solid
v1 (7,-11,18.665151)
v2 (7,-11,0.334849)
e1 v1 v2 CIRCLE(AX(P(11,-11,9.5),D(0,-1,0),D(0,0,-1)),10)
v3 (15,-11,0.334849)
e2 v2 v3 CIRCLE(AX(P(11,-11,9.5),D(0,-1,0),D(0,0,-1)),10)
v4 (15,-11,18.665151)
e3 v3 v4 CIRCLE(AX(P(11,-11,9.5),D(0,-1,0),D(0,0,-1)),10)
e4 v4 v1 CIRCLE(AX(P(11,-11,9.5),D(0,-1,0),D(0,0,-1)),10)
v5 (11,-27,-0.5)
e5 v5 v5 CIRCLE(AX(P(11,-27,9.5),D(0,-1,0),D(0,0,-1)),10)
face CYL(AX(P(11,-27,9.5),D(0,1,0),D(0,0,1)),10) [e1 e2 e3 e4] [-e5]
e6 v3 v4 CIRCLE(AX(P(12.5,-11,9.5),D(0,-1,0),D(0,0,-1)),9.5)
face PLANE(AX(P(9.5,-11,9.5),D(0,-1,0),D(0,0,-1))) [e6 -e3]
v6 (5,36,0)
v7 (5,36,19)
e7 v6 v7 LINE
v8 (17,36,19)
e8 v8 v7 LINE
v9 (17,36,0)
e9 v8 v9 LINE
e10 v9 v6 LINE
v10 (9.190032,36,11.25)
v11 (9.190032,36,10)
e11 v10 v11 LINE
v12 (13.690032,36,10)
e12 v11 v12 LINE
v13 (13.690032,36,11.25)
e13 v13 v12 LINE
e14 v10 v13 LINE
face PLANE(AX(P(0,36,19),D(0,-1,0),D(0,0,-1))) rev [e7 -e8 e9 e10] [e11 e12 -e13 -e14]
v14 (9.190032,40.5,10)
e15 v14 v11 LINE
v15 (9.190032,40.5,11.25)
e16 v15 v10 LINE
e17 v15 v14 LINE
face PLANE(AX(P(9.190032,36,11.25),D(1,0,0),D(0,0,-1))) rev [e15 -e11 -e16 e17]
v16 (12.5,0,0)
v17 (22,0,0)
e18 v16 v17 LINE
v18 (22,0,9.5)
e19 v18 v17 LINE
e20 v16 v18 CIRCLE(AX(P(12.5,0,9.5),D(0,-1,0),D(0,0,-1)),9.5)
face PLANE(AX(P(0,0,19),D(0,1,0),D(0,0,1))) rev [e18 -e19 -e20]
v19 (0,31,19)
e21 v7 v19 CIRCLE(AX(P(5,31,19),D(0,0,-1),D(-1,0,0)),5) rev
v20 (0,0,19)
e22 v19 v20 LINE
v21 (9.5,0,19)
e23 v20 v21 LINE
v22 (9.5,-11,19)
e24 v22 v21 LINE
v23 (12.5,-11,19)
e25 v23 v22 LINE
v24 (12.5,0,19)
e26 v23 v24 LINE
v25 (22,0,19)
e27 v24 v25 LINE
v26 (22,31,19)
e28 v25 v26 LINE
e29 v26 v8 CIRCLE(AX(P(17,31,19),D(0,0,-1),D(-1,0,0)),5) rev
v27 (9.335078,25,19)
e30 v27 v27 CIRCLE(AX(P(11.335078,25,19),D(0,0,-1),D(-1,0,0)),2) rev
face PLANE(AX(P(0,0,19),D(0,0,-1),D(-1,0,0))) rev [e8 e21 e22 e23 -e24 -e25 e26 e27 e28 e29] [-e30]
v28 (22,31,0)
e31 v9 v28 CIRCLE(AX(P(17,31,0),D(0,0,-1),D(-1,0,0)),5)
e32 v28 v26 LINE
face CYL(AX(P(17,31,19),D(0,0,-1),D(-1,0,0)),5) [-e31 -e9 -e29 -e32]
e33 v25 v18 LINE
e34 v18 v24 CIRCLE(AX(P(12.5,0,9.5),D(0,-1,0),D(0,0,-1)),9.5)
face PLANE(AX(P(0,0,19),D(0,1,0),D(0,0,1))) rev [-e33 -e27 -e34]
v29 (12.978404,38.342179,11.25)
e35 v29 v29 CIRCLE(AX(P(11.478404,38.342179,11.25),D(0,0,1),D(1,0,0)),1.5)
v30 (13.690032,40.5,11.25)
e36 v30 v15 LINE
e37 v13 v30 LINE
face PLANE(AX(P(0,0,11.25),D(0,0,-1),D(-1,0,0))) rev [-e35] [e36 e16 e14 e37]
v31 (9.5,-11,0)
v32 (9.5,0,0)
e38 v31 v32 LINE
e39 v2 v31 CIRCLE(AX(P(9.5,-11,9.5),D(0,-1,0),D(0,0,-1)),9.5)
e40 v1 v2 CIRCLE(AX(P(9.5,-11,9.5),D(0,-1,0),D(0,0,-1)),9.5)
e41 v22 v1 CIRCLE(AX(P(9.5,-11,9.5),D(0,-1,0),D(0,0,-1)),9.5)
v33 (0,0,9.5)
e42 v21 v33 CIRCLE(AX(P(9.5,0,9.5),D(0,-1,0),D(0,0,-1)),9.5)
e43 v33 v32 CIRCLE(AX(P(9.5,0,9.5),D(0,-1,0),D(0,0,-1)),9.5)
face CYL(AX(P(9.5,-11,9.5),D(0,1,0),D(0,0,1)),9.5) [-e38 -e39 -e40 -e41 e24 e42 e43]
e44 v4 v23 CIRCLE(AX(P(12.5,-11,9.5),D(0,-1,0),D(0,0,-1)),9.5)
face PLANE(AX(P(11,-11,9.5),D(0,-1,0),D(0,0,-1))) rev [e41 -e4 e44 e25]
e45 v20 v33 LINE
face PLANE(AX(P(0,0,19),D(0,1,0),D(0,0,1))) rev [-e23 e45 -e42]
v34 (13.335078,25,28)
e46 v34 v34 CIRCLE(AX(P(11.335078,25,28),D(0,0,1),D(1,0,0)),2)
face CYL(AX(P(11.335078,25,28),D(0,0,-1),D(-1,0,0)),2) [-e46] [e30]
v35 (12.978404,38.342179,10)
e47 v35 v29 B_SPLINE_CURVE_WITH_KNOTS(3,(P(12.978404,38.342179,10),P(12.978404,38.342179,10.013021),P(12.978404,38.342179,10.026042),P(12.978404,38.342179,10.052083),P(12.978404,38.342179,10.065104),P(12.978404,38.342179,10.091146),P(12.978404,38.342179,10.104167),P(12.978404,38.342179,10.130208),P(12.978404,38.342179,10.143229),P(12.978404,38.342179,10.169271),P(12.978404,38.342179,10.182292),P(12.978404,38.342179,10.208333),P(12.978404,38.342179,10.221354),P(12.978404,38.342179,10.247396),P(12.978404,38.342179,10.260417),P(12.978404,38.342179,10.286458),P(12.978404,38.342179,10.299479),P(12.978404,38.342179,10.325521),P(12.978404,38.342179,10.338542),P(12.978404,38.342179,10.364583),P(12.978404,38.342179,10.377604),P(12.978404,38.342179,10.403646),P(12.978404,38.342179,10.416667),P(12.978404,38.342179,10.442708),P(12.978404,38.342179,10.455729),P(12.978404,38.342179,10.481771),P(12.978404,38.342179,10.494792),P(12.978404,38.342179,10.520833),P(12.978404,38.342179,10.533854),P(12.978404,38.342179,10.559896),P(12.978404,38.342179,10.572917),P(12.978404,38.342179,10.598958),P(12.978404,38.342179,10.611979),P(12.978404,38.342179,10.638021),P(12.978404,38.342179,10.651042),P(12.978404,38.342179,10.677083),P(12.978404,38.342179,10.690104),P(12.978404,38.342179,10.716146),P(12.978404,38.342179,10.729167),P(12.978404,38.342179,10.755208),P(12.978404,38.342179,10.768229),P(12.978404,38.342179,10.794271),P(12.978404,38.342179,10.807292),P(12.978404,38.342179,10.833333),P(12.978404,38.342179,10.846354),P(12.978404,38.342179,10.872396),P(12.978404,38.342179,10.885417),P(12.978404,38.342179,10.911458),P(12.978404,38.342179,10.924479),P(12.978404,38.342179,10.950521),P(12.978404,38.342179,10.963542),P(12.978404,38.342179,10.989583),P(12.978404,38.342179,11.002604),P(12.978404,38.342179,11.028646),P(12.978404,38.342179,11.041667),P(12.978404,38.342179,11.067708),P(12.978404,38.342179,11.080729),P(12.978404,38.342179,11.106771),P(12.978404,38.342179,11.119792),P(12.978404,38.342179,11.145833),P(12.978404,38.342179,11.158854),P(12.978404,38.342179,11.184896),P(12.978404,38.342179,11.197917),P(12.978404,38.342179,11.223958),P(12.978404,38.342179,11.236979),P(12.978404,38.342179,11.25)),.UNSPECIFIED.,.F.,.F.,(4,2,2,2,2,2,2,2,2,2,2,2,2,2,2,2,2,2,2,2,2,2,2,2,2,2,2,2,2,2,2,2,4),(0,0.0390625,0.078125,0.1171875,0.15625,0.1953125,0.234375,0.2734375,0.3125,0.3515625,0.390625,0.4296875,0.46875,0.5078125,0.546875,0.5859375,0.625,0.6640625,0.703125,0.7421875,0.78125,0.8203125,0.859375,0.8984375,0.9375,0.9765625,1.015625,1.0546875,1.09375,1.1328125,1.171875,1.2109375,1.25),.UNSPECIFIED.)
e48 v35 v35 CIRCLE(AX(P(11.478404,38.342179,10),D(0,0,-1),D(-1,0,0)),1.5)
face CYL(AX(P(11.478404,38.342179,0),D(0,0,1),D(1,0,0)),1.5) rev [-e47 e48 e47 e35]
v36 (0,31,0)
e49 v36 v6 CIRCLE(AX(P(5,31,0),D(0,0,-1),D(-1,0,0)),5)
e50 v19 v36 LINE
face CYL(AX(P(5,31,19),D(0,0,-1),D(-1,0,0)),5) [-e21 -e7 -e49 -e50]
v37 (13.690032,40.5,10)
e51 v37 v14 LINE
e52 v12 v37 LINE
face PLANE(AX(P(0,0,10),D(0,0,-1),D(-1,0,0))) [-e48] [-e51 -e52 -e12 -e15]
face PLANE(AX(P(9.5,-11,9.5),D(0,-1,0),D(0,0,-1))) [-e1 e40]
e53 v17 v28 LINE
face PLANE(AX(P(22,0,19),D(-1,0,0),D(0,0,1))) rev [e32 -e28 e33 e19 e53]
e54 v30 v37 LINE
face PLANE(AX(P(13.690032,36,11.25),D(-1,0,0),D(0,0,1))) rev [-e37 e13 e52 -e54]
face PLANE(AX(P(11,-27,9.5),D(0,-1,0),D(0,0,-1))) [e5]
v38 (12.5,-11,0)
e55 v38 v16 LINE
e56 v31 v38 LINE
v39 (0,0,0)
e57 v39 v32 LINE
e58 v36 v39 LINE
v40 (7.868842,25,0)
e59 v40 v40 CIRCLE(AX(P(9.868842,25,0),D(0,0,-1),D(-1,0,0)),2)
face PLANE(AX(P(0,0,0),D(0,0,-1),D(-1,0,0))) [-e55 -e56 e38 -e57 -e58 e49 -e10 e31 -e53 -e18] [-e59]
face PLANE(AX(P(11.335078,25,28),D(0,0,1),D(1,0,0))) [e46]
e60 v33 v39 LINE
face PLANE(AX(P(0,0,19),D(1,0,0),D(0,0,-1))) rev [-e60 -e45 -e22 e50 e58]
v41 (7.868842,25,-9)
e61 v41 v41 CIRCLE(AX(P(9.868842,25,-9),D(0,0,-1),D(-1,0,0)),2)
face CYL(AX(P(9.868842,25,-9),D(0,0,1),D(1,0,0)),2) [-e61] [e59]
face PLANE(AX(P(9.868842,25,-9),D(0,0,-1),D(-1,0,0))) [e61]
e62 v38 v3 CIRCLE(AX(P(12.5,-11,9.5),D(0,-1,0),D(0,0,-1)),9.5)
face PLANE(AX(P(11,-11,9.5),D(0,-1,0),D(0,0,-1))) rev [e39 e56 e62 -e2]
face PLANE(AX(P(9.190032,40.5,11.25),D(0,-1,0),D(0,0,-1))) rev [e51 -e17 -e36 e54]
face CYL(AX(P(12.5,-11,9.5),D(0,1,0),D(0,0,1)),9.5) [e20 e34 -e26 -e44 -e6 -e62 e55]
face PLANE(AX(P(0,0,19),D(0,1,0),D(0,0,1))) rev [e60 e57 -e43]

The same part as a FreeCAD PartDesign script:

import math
import FreeCAD as App
import Part
import Sketcher

V = App.Vector


def edges_at(feature, points):
    """Names of the edges that pass closest to the given points."""
    edges = feature.Shape.Edges
    near = lambda p: min(range(len(edges)), key=lambda i: edges[i].distToShape(Part.Vertex(*p))[0])
    return sorted({f"Edge{near(p) + 1}" for p in points})

doc = App.newDocument("Part")
body = doc.addObject("PartDesign::Body", "Body")

sketch1 = doc.addObject("Sketcher::SketchObject", "Sketch")
body.addObject(sketch1)
sketch1.AttachmentSupport = (doc.XY_Plane, [""])
sketch1.MapMode = "FlatFace"
sketch1.addGeometry([
    Part.LineSegment(V(0, 36, 0), V(0, 0, 0)),
    Part.LineSegment(V(0, 0, 0), V(22, 0, 0)),
    Part.LineSegment(V(22, 0, 0), V(22, 36, 0)),
    Part.LineSegment(V(22, 36, 0), V(0, 36, 0)),
], False)
sketch1.addConstraint([
    Sketcher.Constraint("Coincident", 0, 2, 1, 1),
    Sketcher.Constraint("Coincident", 1, 2, 2, 1),
    Sketcher.Constraint("Coincident", 2, 2, 3, 1),
    Sketcher.Constraint("Coincident", 3, 2, 0, 1),
    Sketcher.Constraint("Vertical", 0),
    Sketcher.Constraint("Horizontal", 1),
    Sketcher.Constraint("Vertical", 2),
    Sketcher.Constraint("Horizontal", 3),
    Sketcher.Constraint("Coincident", 0, 2, -1, 1),
    Sketcher.Constraint("DistanceX", 1, 1, 1, 2, 22.0),
    Sketcher.Constraint("DistanceY", 0, 2, 0, 1, 36.0),
])
pad1 = doc.addObject("PartDesign::Pad", "Pad")
body.addObject(pad1)
pad1.Profile = sketch1
pad1.Length = 19

sketch2 = doc.addObject("Sketcher::SketchObject", "Sketch001")
body.addObject(sketch2)
sketch2.AttachmentSupport = (doc.XY_Plane, [""])
sketch2.MapMode = "FlatFace"
sketch2.AttachmentOffset = App.Placement(V(0, 0, 10), App.Rotation())
sketch2.addGeometry([
    Part.LineSegment(V(9.2, 40.5, 0), V(9.2, 36, 0)),
    Part.LineSegment(V(9.2, 36, 0), V(13.7, 36, 0)),
    Part.LineSegment(V(13.7, 36, 0), V(13.7, 40.5, 0)),
    Part.LineSegment(V(13.7, 40.5, 0), V(9.2, 40.5, 0)),
], False)
sketch2.addConstraint([
    Sketcher.Constraint("Coincident", 0, 2, 1, 1),
    Sketcher.Constraint("Coincident", 1, 2, 2, 1),
    Sketcher.Constraint("Coincident", 2, 2, 3, 1),
    Sketcher.Constraint("Coincident", 3, 2, 0, 1),
    Sketcher.Constraint("Vertical", 0),
    Sketcher.Constraint("Horizontal", 1),
    Sketcher.Constraint("Vertical", 2),
    Sketcher.Constraint("Horizontal", 3),
    Sketcher.Constraint("Equal", 3, 0),
    Sketcher.Constraint("DistanceX", 1, 1, 1, 2, 4.5),
    Sketcher.Constraint("DistanceY", -1, 1, 0, 2, 36.0),
    Sketcher.Constraint("DistanceX", -1, 1, 0, 2, 9.190032),
])
pad2 = doc.addObject("PartDesign::Pad", "Pad001")
body.addObject(pad2)
pad2.Profile = sketch2
pad2.Length = 1.25

sketch3 = doc.addObject("Sketcher::SketchObject", "Sketch002")
body.addObject(sketch3)
sketch3.AttachmentSupport = (doc.XY_Plane, [""])
sketch3.MapMode = "FlatFace"
sketch3.AttachmentOffset = App.Placement(V(0, 0, 11.25), App.Rotation())
sketch3.addGeometry(Part.Circle(V(11.5, 38.3, 0), V(0, 0, 1), 1.5), False)
sketch3.addConstraint([
    Sketcher.Constraint("Diameter", 0, 3.0),
    Sketcher.Constraint("DistanceY", -1, 1, 0, 3, 38.342179),
    Sketcher.Constraint("DistanceX", -1, 1, 0, 3, 11.478404),
])
pocket1 = doc.addObject("PartDesign::Pocket", "Pocket")
body.addObject(pocket1)
pocket1.Profile = sketch3
pocket1.Type = "ThroughAll"

sketch4 = doc.addObject("Sketcher::SketchObject", "Sketch003")
body.addObject(sketch4)
sketch4.AttachmentSupport = (doc.XZ_Plane, [""])
sketch4.MapMode = "FlatFace"
sketch4.addGeometry([
    Part.LineSegment(V(12.5, 19, 0), V(9.5, 19, 0)),
    Part.ArcOfCircle(Part.Circle(V(9.5, 9.5, 0), V(0, 0, 1), 9.5), math.radians(90), math.radians(270)),
    Part.LineSegment(V(9.5, 0, 0), V(12.5, 0, 0)),
    Part.ArcOfCircle(Part.Circle(V(12.5, 9.5, 0), V(0, 0, 1), 9.5), math.radians(-90), math.radians(90)),
], False)
sketch4.addConstraint([
    Sketcher.Constraint("Tangent", 0, 2, 1, 1),
    Sketcher.Constraint("Tangent", 1, 2, 2, 1),
    Sketcher.Constraint("Tangent", 2, 2, 3, 1),
    Sketcher.Constraint("Tangent", 3, 2, 0, 1),
    Sketcher.Constraint("Horizontal", 0),
    Sketcher.Constraint("Horizontal", 2),
    Sketcher.Constraint("PointOnObject", 1, 2, -1),
    Sketcher.Constraint("Radius", 1, 9.5),
    Sketcher.Constraint("DistanceX", 0, 2, 0, 1, 3.0),
    Sketcher.Constraint("DistanceX", -1, 1, 1, 3, 9.5),
])
pad3 = doc.addObject("PartDesign::Pad", "Pad002")
body.addObject(pad3)
pad3.Profile = sketch4
pad3.Length = 11

sketch5 = doc.addObject("Sketcher::SketchObject", "Sketch004")
body.addObject(sketch5)
sketch5.AttachmentSupport = (doc.XZ_Plane, [""])
sketch5.MapMode = "FlatFace"
sketch5.AttachmentOffset = App.Placement(V(0, 0, 11), App.Rotation())
sketch5.addGeometry(Part.Circle(V(11, 10, 0), V(0, 0, 1), 10), False)
sketch5.addConstraint([
    Sketcher.Constraint("Diameter", 0, 20.0),
    Sketcher.Constraint("DistanceX", -1, 1, 0, 3, 11.0),
    Sketcher.Constraint("DistanceY", -1, 1, 0, 3, 9.5),
])
pad4 = doc.addObject("PartDesign::Pad", "Pad003")
body.addObject(pad4)
pad4.Profile = sketch5
pad4.Length = 16
doc.recompute()

fillet = doc.addObject("PartDesign::Fillet", "Fillet")
body.addObject(fillet)
fillet.Base = (pad4, edges_at(pad4, [(0, 36, 9.5), (22, 36, 9.5)]))
fillet.Radius = 5

sketch6 = doc.addObject("Sketcher::SketchObject", "Sketch005")
body.addObject(sketch6)
sketch6.AttachmentSupport = (doc.XY_Plane, [""])
sketch6.MapMode = "FlatFace"
sketch6.addGeometry(Part.Circle(V(9.9, 25, 0), V(0, 0, 1), 2), False)
sketch6.addConstraint([
    Sketcher.Constraint("Diameter", 0, 4.0),
    Sketcher.Constraint("DistanceY", -1, 1, 0, 3, 25.0),
    Sketcher.Constraint("DistanceX", -1, 1, 0, 3, 9.868842),
])
pad5 = doc.addObject("PartDesign::Pad", "Pad004")
body.addObject(pad5)
pad5.Profile = sketch6
pad5.Length = 9
pad5.Reversed = True

sketch7 = doc.addObject("Sketcher::SketchObject", "Sketch006")
body.addObject(sketch7)
sketch7.AttachmentSupport = (doc.XY_Plane, [""])
sketch7.MapMode = "FlatFace"
sketch7.AttachmentOffset = App.Placement(V(0, 0, 19), App.Rotation())
sketch7.addGeometry(Part.Circle(V(11.3, 25, 0), V(0, 0, 1), 2), False)
sketch7.addConstraint([
    Sketcher.Constraint("Diameter", 0, 4.0),
    Sketcher.Constraint("DistanceY", -1, 1, 0, 3, 25.0),
    Sketcher.Constraint("DistanceX", -1, 1, 0, 3, 11.335078),
])
pad6 = doc.addObject("PartDesign::Pad", "Pad005")
body.addObject(pad6)
pad6.Profile = sketch7
pad6.Length = 9

doc.recompute()
